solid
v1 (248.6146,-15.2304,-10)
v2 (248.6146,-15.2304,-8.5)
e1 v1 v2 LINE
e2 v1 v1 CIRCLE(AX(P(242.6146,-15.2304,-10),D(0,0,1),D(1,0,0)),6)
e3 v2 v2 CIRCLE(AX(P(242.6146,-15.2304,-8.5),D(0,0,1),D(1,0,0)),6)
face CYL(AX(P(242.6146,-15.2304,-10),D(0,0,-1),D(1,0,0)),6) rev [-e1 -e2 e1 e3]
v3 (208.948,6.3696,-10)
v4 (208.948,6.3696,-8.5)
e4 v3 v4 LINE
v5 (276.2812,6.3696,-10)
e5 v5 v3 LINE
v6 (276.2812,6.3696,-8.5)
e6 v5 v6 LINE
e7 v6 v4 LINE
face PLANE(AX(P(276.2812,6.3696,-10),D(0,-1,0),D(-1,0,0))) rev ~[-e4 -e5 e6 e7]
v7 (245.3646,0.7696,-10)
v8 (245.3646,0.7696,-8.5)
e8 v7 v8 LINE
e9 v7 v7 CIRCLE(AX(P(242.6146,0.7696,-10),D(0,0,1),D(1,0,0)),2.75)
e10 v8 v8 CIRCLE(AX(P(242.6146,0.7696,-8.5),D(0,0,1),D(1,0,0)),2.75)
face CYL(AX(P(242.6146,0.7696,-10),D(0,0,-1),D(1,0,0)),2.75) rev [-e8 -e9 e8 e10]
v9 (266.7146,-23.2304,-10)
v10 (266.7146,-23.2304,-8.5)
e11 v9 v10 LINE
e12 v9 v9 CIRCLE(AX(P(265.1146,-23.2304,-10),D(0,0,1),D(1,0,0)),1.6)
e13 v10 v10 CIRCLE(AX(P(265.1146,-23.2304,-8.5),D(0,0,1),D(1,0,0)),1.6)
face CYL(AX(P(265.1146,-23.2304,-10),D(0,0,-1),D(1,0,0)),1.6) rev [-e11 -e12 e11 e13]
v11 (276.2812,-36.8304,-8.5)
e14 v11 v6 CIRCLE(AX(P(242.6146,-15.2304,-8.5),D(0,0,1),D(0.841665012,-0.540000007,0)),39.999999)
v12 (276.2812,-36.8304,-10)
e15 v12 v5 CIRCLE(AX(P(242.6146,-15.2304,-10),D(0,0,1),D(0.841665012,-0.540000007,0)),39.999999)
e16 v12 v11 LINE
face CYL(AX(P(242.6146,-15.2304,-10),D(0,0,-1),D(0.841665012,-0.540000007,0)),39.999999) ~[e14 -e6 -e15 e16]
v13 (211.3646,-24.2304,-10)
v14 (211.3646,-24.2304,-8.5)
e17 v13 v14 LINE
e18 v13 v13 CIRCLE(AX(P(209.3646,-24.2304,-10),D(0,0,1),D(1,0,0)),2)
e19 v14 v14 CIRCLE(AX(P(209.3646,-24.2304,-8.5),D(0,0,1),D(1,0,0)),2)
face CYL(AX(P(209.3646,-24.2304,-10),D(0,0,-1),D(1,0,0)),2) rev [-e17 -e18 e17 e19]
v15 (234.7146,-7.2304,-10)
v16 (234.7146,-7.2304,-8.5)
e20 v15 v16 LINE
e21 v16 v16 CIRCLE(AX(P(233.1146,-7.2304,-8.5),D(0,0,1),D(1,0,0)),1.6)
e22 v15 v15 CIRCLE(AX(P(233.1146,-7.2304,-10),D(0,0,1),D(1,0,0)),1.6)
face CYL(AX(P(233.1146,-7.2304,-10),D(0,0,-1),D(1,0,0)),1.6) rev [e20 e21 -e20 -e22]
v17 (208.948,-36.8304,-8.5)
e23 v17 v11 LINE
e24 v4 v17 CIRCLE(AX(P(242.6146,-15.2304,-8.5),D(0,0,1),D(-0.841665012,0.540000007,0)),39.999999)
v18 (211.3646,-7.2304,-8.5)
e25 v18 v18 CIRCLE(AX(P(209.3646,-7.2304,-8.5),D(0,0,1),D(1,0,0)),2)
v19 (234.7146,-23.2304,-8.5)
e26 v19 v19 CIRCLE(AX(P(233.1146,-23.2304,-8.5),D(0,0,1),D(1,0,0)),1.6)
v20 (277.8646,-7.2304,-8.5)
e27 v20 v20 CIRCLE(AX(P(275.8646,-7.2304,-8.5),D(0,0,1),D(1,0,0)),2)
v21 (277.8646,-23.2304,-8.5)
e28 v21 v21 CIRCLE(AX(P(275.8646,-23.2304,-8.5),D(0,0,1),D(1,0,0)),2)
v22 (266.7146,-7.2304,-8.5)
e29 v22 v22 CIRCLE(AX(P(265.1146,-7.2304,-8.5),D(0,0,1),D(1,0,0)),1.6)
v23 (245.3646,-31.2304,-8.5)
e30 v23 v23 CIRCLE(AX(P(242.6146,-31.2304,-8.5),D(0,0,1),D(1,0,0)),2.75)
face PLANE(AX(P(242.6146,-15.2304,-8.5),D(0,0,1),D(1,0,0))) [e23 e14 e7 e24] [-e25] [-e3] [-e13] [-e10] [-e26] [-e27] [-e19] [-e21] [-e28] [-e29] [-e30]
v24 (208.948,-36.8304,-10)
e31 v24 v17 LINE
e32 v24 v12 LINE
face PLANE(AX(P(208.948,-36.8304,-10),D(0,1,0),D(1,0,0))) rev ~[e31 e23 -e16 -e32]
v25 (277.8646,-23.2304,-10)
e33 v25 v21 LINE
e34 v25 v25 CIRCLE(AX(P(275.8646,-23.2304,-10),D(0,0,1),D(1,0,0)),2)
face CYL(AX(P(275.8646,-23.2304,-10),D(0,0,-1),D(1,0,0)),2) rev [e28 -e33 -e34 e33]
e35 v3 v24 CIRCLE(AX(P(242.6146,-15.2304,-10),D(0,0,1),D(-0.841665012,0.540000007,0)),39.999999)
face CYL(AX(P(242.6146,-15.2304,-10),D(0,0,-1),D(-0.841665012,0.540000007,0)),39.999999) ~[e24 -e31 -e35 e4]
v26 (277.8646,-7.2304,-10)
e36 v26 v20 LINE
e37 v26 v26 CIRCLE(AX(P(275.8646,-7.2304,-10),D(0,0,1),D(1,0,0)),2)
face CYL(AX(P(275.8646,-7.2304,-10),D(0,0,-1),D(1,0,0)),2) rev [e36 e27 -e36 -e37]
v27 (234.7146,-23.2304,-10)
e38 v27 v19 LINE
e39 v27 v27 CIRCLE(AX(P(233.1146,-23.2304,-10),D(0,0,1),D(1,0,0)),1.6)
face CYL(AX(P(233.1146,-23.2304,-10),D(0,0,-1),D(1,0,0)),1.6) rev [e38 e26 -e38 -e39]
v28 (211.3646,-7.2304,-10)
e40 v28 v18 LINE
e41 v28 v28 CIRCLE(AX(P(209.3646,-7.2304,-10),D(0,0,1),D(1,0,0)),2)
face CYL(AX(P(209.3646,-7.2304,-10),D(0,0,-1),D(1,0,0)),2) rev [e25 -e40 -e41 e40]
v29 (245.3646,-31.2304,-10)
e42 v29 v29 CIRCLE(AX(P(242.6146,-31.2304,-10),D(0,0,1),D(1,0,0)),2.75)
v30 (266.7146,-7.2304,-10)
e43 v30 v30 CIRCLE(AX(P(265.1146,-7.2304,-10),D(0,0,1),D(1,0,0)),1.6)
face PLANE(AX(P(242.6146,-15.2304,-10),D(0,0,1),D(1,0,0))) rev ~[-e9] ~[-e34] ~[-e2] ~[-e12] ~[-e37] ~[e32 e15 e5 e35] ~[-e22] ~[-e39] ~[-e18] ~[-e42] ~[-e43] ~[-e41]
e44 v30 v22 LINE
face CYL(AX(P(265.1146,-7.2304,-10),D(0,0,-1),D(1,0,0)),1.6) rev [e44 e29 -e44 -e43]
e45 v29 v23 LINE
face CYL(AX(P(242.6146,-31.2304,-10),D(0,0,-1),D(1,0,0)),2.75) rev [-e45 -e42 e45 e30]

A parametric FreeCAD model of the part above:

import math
import FreeCAD as App
import Part
import Sketcher

V = App.Vector
Q = App.Units.Quantity

doc = App.newDocument("Part")
body = doc.addObject("PartDesign::Body", "Body")

# Sketch on XY plane
sketch1 = doc.addObject("Sketcher::SketchObject", "Sketch")
body.addObject(sketch1)
sketch1.AttachmentSupport = (doc.XY_Plane, [""])
sketch1.MapMode = "FlatFace"
sketch1.AttachmentOffset = App.Placement(V(0, 0, -10), App.Rotation())
sketch1.addGeometry(Part.ArcOfCircle(Part.Circle(V(242.6, -15.2, 0), V(0, 0, 1), 40), math.radians(147), math.radians(213)), False)
sketch1.addGeometry(Part.LineSegment(V(208.9, -36.8, 0), V(276.3, -36.8, 0)), False)
sketch1.addGeometry(Part.ArcOfCircle(Part.Circle(V(242.6, -15.2, 0), V(0, 0, 1), 40), math.radians(-33), math.radians(33)), False)
sketch1.addGeometry(Part.LineSegment(V(276.3, 6.4, 0), V(208.9, 6.4, 0)), False)
sketch1.addGeometry(Part.Circle(V(209.4, -24.2, 0), V(0, 0, 1), 2), False)
sketch1.addGeometry(Part.Circle(V(233.1, -23.2, 0), V(0, 0, 1), 1.6), False)
sketch1.addGeometry(Part.Circle(V(242.6, -31.2, 0), V(0, 0, 1), 2.8), False)
sketch1.addGeometry(Part.Circle(V(265.1, -23.2, 0), V(0, 0, 1), 1.6), False)
sketch1.addGeometry(Part.Circle(V(275.9, -23.2, 0), V(0, 0, 1), 2), False)
sketch1.addGeometry(Part.Circle(V(209.4, -7.2, 0), V(0, 0, 1), 2), False)
sketch1.addGeometry(Part.Circle(V(233.1, -7.2, 0), V(0, 0, 1), 1.6), False)
sketch1.addGeometry(Part.Circle(V(242.6, -15.2, 0), V(0, 0, 1), 6), False)
sketch1.addGeometry(Part.Circle(V(265.1, -7.2, 0), V(0, 0, 1), 1.6), False)
sketch1.addGeometry(Part.Circle(V(275.9, -7.2, 0), V(0, 0, 1), 2), False)
sketch1.addGeometry(Part.Circle(V(242.6, 0.8, 0), V(0, 0, 1), 2.8), False)
sketch1.addConstraint(Sketcher.Constraint("Coincident", 0, 2, 1, 1))
sketch1.addConstraint(Sketcher.Constraint("Coincident", 1, 2, 2, 1))
sketch1.addConstraint(Sketcher.Constraint("Coincident", 2, 2, 3, 1))
sketch1.addConstraint(Sketcher.Constraint("Coincident", 3, 2, 0, 1))
sketch1.addConstraint(Sketcher.Constraint("Horizontal", 1))
sketch1.addConstraint(Sketcher.Constraint("Horizontal", 3))
sketch1.addConstraint(Sketcher.Constraint("Coincident", 2, 3, 0, 3))
sketch1.addConstraint(Sketcher.Constraint("Coincident", 11, 3, 0, 3))
sketch1.addConstraint(Sketcher.Constraint("Equal", 0, 2))
sketch1.addConstraint(Sketcher.Constraint("Equal", 5, 7))
sketch1.addConstraint(Sketcher.Constraint("Equal", 4, 8))
sketch1.addConstraint(Sketcher.Constraint("Equal", 8, 9))
sketch1.addConstraint(Sketcher.Constraint("Equal", 7, 10))
sketch1.addConstraint(Sketcher.Constraint("Equal", 10, 12))
sketch1.addConstraint(Sketcher.Constraint("Equal", 9, 13))
sketch1.addConstraint(Sketcher.Constraint("Equal", 6, 14))
sketch1.addConstraint(Sketcher.Constraint("Horizontal", 5, 3, 7, 3))
sketch1.addConstraint(Sketcher.Constraint("Horizontal", 7, 3, 8, 3))
sketch1.addConstraint(Sketcher.Constraint("Horizontal", 9, 3, 10, 3))
sketch1.addConstraint(Sketcher.Constraint("Horizontal", 10, 3, 12, 3))
sketch1.addConstraint(Sketcher.Constraint("Horizontal", 12, 3, 13, 3))
sketch1.addConstraint(Sketcher.Constraint("Vertical", 2, 3, 6, 3))
sketch1.addConstraint(Sketcher.Constraint("Vertical", 4, 3, 9, 3))
sketch1.addConstraint(Sketcher.Constraint("Vertical", 5, 3, 10, 3))
sketch1.addConstraint(Sketcher.Constraint("Vertical", 7, 3, 12, 3))
sketch1.addConstraint(Sketcher.Constraint("Vertical", 8, 3, 13, 3))
sketch1.addConstraint(Sketcher.Constraint("Vertical", 11, 3, 14, 3))
sketch1.addConstraint(Sketcher.Constraint("Vertical", 1, 2, 2, 2))
sketch1.addConstraint(Sketcher.Constraint("Diameter", 11, Q("12 mm")))
sketch1.addConstraint(Sketcher.Constraint("Diameter", 4, Q("4 mm")))
sketch1.addConstraint(Sketcher.Constraint("Radius", 0, Q("40 mm")))
sketch1.addConstraint(Sketcher.Constraint("Diameter", 5, Q("3.2 mm")))
sketch1.addConstraint(Sketcher.Constraint("Diameter", 6, Q("5.5 mm")))
sketch1.addConstraint(Sketcher.Constraint("DistanceY", 4, 3, 0, 3, Q("9 mm")))
sketch1.addConstraint(Sketcher.Constraint("DistanceY", 5, 3, 0, 3, Q("8 mm")))
sketch1.addConstraint(Sketcher.Constraint("DistanceY", 6, 3, 5, 3, Q("8 mm")))
sketch1.addConstraint(Sketcher.Constraint("DistanceX", 5, 3, 7, 3, Q("32 mm")))
sketch1.addConstraint(Sketcher.Constraint("DistanceY", 4, 3, 9, 3, Q("17 mm")))
sketch1.addConstraint(Sketcher.Constraint("DistanceY", 10, 3, 14, 3, Q("8 mm")))
sketch1.addConstraint(Sketcher.Constraint("DistanceX", 5, 3, 0, 3, Q("9.5 mm")))
sketch1.addConstraint(Sketcher.Constraint("DistanceY", 0, 2, 4, 3, Q("12.6 mm")))
sketch1.addConstraint(Sketcher.Constraint("DistanceX", 4, 3, 0, 3, Q("33.25 mm")))
sketch1.addConstraint(Sketcher.Constraint("DistanceX", 7, 3, 8, 3, Q("10.75 mm")))
sketch1.addConstraint(Sketcher.Constraint("DistanceX", -1, 1, 0, 2, Q("208.948 mm")))
sketch1.addConstraint(Sketcher.Constraint("DistanceY", 0, 3, -1, 1, Q("15.2304 mm")))
pad1 = doc.addObject("PartDesign::Pad", "Pad")
body.addObject(pad1)
pad1.Profile = sketch1
pad1.Length = 1.5

doc.recompute()
